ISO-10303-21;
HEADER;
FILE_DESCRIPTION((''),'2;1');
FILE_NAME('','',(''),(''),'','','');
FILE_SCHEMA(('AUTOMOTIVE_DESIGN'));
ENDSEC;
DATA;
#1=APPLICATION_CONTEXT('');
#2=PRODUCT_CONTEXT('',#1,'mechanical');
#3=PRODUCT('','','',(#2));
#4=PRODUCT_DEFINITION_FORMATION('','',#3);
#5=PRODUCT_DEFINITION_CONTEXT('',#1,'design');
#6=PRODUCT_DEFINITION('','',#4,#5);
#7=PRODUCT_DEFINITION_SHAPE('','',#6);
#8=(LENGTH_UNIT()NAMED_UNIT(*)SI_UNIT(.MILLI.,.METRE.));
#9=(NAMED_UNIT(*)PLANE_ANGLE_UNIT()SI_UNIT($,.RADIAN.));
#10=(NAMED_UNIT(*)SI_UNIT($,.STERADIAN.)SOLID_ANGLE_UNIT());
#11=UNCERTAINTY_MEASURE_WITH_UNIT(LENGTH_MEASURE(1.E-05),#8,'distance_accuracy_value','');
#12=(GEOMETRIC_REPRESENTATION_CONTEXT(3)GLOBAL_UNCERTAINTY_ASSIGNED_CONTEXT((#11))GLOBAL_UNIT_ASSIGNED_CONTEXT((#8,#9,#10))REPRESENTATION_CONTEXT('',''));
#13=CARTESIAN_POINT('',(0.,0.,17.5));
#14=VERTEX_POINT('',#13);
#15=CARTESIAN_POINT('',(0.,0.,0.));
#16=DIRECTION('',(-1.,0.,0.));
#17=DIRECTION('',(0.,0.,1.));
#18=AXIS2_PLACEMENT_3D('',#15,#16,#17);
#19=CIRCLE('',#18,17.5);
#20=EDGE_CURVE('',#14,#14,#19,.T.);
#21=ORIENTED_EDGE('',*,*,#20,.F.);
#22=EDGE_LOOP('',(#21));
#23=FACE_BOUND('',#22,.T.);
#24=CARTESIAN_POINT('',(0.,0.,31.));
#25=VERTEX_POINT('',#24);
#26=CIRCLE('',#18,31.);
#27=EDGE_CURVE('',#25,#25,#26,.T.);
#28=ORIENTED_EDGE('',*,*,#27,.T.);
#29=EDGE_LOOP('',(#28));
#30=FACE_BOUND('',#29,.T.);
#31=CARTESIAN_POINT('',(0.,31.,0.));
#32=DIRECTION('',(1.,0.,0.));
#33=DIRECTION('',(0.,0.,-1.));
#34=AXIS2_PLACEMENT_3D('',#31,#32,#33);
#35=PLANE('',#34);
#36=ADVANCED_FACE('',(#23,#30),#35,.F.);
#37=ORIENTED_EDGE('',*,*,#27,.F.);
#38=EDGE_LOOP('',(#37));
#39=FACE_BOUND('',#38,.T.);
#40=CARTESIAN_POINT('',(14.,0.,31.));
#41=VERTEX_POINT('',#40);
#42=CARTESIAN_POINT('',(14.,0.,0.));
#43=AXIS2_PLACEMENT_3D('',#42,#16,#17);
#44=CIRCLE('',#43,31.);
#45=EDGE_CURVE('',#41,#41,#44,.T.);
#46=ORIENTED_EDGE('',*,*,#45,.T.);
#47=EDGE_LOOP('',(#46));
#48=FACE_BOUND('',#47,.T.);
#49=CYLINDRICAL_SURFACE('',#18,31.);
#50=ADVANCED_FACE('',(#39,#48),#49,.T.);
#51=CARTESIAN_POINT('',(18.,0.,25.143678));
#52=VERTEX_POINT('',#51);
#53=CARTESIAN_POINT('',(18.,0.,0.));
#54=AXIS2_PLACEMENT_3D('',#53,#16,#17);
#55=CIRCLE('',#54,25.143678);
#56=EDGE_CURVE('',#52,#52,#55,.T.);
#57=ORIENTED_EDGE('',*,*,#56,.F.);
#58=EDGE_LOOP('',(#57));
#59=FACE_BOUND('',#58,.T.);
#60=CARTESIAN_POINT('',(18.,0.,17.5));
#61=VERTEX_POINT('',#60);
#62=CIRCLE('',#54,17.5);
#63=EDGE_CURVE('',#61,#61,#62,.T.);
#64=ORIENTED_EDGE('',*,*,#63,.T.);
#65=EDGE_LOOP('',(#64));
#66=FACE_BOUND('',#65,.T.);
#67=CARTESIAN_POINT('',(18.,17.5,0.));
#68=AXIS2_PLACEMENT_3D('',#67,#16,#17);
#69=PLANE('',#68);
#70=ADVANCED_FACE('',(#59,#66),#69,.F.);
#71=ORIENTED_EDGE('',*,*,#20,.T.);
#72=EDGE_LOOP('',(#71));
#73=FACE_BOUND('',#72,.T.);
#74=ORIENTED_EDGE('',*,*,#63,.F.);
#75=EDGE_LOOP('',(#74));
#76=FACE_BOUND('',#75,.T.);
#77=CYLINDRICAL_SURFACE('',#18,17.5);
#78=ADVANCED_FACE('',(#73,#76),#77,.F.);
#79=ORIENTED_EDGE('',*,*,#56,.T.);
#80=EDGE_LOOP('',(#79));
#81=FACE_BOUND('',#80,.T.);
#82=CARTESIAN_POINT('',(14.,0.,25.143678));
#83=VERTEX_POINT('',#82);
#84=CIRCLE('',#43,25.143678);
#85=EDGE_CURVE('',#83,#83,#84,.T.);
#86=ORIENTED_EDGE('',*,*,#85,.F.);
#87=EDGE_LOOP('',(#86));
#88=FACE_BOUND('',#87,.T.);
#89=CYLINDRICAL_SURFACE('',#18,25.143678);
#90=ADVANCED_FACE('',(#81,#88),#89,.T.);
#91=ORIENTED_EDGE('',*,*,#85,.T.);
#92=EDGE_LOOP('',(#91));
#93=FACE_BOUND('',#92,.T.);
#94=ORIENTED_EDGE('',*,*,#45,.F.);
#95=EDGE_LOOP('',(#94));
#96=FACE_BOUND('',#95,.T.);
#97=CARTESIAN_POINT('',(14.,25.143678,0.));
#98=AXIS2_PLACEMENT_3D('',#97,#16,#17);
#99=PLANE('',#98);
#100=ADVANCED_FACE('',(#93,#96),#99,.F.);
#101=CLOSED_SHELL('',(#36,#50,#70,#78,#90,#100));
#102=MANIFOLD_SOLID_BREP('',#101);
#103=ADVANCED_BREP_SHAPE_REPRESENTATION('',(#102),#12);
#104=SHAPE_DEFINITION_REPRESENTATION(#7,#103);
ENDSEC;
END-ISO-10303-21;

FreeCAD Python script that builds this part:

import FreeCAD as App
import Part
import Sketcher

V = App.Vector
Q = App.Units.Quantity

doc = App.newDocument("Part")
body = doc.addObject("PartDesign::Body", "Body")

# Sketch on XY plane
sketch1 = body.newObject("Sketcher::SketchObject", "Sketch")
sketch1.AttachmentSupport = (doc.getObject("XY_Plane"), [""])
sketch1.MapMode = "FlatFace"
sketch1.addGeometry([
    Part.LineSegment(V(0, 17.5, 0), V(18, 17.5, 0)),  # 0
    Part.LineSegment(V(18, 17.5, 0), V(18, 25.1, 0)),  # 1
    Part.LineSegment(V(18, 25.1, 0), V(14, 25.1, 0)),  # 2
    Part.LineSegment(V(14, 25.1, 0), V(14, 31, 0)),  # 3
    Part.LineSegment(V(14, 31, 0), V(0, 31, 0)),  # 4
    Part.LineSegment(V(0, 31, 0), V(0, 17.5, 0)),  # 5
], False)
sketch1.addConstraint([
    Sketcher.Constraint("Coincident", 0, 2, 1, 1),
    Sketcher.Constraint("Coincident", 1, 2, 2, 1),
    Sketcher.Constraint("Coincident", 2, 2, 3, 1),
    Sketcher.Constraint("Coincident", 3, 2, 4, 1),
    Sketcher.Constraint("Coincident", 4, 2, 5, 1),
    Sketcher.Constraint("Coincident", 5, 2, 0, 1),
    Sketcher.Constraint("Horizontal", 0),
    Sketcher.Constraint("Vertical", 1),
    Sketcher.Constraint("Horizontal", 2),
    Sketcher.Constraint("Vertical", 3),
    Sketcher.Constraint("Horizontal", 4),
    Sketcher.Constraint("Vertical", 5),
    Sketcher.Constraint("PointOnObject", 4, 2, -2),
    Sketcher.Constraint("DistanceX", 0, 1, 0, 2, Q("18 mm")),
    Sketcher.Constraint("DistanceX", 2, 2, 2, 1, Q("4 mm")),
    Sketcher.Constraint("DistanceY", 5, 2, 5, 1, Q("13.5 mm")),
    Sketcher.Constraint("DistanceY", -1, 1, 3, 2, Q("31 mm")),
    Sketcher.Constraint("DistanceY", 1, 1, 1, 2, Q("7.643678 mm")),
])
revolution = body.newObject("PartDesign::Revolution", "Revolution")
revolution.Profile = sketch1
revolution.ReferenceAxis = (sketch1, ["H_Axis"])
revolution.Angle = 360

doc.recompute()
